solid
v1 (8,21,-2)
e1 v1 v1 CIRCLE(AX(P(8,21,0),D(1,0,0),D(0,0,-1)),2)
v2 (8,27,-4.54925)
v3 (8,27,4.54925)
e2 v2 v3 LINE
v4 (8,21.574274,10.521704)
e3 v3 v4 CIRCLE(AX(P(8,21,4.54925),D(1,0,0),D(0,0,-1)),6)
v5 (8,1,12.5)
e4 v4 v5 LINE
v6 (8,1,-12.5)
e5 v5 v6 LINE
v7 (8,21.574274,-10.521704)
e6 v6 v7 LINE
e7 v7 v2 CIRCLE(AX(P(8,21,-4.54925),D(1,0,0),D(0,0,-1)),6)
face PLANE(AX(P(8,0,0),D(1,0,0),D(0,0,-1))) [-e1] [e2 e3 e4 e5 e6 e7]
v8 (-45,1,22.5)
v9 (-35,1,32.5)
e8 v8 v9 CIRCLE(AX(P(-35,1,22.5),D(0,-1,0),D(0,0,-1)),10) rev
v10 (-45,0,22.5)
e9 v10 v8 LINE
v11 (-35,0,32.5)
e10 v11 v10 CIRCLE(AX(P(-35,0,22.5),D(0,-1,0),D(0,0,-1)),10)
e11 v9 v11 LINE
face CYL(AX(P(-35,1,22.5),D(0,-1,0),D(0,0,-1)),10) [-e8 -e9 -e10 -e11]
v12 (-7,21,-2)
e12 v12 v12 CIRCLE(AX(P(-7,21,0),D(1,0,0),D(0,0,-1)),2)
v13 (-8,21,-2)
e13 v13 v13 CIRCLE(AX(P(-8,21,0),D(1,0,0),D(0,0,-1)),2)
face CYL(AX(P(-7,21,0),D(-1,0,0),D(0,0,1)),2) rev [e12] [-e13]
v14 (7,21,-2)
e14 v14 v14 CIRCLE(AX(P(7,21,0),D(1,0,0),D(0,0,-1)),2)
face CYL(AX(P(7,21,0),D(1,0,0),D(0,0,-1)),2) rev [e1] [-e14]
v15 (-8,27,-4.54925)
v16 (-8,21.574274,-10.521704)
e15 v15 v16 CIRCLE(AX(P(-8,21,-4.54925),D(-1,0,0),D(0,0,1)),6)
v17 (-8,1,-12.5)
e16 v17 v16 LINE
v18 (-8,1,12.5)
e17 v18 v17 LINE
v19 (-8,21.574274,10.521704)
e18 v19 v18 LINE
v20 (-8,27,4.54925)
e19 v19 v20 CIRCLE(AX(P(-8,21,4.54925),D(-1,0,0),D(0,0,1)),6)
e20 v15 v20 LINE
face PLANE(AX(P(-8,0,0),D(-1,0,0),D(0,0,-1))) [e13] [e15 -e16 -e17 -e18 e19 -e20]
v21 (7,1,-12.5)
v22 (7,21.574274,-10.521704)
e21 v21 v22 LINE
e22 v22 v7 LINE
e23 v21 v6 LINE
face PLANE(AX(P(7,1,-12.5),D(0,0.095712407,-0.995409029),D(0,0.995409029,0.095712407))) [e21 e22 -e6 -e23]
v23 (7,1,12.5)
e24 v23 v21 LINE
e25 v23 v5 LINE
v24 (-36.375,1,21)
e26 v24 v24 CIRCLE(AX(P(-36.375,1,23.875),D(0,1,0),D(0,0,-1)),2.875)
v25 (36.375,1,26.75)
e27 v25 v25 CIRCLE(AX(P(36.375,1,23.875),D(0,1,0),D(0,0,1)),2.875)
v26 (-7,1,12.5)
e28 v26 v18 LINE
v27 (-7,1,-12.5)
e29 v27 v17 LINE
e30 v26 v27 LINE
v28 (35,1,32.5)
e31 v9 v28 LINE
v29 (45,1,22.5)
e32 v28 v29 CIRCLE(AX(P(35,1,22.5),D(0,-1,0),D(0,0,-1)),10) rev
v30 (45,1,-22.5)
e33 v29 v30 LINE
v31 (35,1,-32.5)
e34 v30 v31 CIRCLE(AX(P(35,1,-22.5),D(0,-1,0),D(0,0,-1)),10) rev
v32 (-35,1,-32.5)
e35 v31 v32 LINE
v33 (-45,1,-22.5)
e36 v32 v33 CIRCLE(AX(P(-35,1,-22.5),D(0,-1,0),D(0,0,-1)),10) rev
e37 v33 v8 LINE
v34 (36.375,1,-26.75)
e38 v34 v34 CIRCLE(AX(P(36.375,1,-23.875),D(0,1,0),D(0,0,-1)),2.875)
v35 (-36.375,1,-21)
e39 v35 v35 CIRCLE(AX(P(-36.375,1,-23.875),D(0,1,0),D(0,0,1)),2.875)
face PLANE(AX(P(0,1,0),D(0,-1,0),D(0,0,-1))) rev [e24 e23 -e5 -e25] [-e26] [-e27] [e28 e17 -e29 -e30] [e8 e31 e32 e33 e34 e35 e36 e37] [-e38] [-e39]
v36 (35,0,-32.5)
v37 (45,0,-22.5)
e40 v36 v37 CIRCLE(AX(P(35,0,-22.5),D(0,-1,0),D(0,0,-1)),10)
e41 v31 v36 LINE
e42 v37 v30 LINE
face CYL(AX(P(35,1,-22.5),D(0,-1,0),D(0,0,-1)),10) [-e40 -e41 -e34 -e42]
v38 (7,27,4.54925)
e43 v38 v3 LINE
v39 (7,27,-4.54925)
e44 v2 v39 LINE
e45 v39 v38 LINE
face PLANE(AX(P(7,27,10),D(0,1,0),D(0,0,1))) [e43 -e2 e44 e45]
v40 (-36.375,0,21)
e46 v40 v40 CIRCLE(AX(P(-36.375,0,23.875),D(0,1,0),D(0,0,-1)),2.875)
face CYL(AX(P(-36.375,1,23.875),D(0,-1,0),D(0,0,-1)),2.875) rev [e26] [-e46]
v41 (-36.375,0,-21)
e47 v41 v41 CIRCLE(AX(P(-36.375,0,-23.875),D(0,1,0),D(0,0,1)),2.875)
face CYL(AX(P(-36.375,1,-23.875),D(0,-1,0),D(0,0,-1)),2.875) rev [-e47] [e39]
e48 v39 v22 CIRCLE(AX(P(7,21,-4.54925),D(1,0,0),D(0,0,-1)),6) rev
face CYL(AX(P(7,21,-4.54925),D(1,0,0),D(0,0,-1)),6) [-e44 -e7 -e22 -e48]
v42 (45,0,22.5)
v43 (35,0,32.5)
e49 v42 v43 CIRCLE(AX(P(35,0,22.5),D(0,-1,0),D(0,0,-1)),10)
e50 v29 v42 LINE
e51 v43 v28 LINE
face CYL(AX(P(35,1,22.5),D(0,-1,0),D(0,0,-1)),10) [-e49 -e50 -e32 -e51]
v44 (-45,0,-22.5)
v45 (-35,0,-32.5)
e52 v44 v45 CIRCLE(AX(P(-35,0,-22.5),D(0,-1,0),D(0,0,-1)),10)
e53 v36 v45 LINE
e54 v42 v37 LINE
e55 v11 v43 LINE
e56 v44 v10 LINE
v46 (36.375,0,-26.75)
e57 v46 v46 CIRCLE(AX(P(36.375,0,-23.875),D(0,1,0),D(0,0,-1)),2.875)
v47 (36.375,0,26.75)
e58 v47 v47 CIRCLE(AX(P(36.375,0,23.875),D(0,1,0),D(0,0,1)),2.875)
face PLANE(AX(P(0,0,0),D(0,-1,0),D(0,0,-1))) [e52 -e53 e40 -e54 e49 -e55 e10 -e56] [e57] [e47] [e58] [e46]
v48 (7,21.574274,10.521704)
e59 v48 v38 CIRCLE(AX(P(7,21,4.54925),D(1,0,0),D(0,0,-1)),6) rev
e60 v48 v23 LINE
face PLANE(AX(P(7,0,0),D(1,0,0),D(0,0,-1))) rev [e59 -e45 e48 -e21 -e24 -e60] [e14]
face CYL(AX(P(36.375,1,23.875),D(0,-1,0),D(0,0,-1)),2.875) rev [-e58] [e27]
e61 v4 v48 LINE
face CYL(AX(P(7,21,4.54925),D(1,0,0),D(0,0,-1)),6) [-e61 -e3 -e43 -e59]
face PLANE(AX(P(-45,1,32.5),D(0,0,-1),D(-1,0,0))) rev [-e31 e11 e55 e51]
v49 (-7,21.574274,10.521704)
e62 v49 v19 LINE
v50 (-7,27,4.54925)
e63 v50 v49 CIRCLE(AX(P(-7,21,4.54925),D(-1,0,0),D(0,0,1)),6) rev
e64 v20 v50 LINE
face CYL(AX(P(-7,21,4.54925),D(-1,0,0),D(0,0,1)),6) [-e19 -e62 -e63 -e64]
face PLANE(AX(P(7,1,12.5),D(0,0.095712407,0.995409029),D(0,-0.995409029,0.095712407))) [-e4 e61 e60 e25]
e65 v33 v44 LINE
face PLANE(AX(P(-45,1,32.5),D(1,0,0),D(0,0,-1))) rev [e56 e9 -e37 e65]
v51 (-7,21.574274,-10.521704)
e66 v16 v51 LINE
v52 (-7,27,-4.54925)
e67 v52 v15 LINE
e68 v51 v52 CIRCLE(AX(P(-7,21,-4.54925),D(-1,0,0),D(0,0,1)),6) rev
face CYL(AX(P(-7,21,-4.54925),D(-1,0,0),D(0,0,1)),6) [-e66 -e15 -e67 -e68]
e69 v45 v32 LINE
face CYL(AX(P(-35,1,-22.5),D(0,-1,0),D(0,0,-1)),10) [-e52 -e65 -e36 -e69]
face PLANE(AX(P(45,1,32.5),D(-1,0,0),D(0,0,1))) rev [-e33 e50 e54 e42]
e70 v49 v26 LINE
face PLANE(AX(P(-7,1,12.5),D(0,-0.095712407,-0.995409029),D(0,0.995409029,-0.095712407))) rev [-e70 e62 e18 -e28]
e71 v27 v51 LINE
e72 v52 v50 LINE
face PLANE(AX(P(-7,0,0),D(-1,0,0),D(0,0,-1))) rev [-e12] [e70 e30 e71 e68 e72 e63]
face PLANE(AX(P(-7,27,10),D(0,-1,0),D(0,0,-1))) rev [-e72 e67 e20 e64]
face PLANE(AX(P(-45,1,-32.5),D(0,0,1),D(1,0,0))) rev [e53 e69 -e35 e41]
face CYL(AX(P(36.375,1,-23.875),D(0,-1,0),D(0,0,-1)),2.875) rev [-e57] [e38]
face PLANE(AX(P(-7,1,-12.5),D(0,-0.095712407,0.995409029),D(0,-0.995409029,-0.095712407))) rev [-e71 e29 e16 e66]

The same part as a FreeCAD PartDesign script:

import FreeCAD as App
import Part
import Sketcher
from FreeCAD import Vector
Q = App.Units.Quantity


def edges_at(feature, points):
    """Names of the edges that pass closest to the given points."""
    edges = feature.Shape.Edges
    near = lambda p: min(range(len(edges)), key=lambda i: edges[i].distToShape(Part.Vertex(*p))[0])
    return sorted({f"Edge{near(p) + 1}" for p in points})


def add_polygon(sketch, points):
    """Adds a closed chain of lines whose ends are joined by coincident constraints."""
    first, n = sketch.GeometryCount, len(points)
    for a, b in zip(points, points[1:] + points[:1]):
        sketch.addGeometry(Part.LineSegment(App.Vector(*a, 0), App.Vector(*b, 0)), False)
    for i in range(n):
        sketch.addConstraint(Sketcher.Constraint("Coincident", first + i, 2, first + (i + 1) % n, 1))

doc = App.newDocument("Part")
body = doc.addObject("PartDesign::Body", "Body")

sketch1 = doc.addObject("Sketcher::SketchObject", "Sketch")
body.addObject(sketch1)
sketch1.AttachmentSupport = (doc.XZ_Plane, [""])
sketch1.MapMode = "FlatFace"
add_polygon(sketch1, [(-45, -32.5), (-45, 32.5), (45, 32.5), (45, -32.5)])
sketch1.addGeometry(Part.Circle(Vector(-36.375, 23.875, 0), Vector(0, 0, 1), 2.875), False)
sketch1.addGeometry(Part.Circle(Vector(36.375, 23.875, 0), Vector(0, 0, 1), 2.875), False)
sketch1.addGeometry(Part.Circle(Vector(-36.375, -23.875, 0), Vector(0, 0, 1), 2.875), False)
sketch1.addGeometry(Part.Circle(Vector(36.375, -23.875, 0), Vector(0, 0, 1), 2.875), False)
sketch1.addConstraint([
    Sketcher.Constraint("Vertical", 0),
    Sketcher.Constraint("Horizontal", 1),
    Sketcher.Constraint("Vertical", 2),
    Sketcher.Constraint("Horizontal", 3),
    Sketcher.Constraint("Equal", 4, 5),
    Sketcher.Constraint("Equal", 5, 6),
    Sketcher.Constraint("Equal", 6, 7),
    Sketcher.Constraint("Symmetric", 5, 3, 6, 3, -1, 1),
    Sketcher.Constraint("Symmetric", 4, 3, 7, 3, -1, 1),
    Sketcher.Constraint("Symmetric", 0, 2, 2, 2, -1, 1),
    Sketcher.Constraint("Symmetric", 4, 3, 5, 3, -2),
    Sketcher.Constraint("Diameter", 4, Q("5.75 mm")),
    Sketcher.Constraint("DistanceX", 1, 1, 1, 2, Q("90 mm")),
    Sketcher.Constraint("DistanceY", 0, 1, 0, 2, Q("65 mm")),
    Sketcher.Constraint("DistanceX", 4, 3, 5, 3, Q("72.75 mm")),
    Sketcher.Constraint("DistanceY", 6, 3, 4, 3, Q("47.75 mm")),
])
pad1 = doc.addObject("PartDesign::Pad", "Pad")
body.addObject(pad1)
pad1.Profile = sketch1
pad1.Length = 1
pad1.Reversed = True
doc.recompute()

fillet = doc.addObject("PartDesign::Fillet", "Fillet")
body.addObject(fillet)
fillet.Base = (pad1, edges_at(pad1, [
    (45, 0.5, 32.5),
    (-45, 0.5, 32.5),
    (-45, 0.5, -32.5),
    (45, 0.5, -32.5),
]))
fillet.Radius = 10

sketch2 = doc.addObject("Sketcher::SketchObject", "Sketch001")
body.addObject(sketch2)
sketch2.AttachmentSupport = (doc.YZ_Plane, [""])
sketch2.MapMode = "FlatFace"
sketch2.AttachmentOffset = App.Placement(Vector(0, 0, 8), App.Rotation())
add_polygon(sketch2, [(27, 10), (1, 12.5), (1, -12.5), (27, -10)])
sketch2.addGeometry(Part.Circle(Vector(21, 0, 0), Vector(0, 0, 1), 2), False)
sketch2.addConstraint([
    Sketcher.Constraint("Vertical", 1),
    Sketcher.Constraint("Vertical", 3),
    Sketcher.Constraint("PointOnObject", 4, 3, -1),
    Sketcher.Constraint("Equal", 0, 2),
    Sketcher.Constraint("Diameter", 4, Q("4 mm")),
    Sketcher.Constraint("DistanceY", 1, 2, 1, 1, Q("25 mm")),
    Sketcher.Constraint("DistanceY", 3, 1, 3, 2, Q("20 mm")),
    Sketcher.Constraint("DistanceX", -1, 1, 4, 3, Q("21 mm")),
    Sketcher.Constraint("DistanceX", -1, 1, 0, 2, Q("1 mm")),
    Sketcher.Constraint("DistanceX", -1, 1, 2, 2, Q("27 mm")),
    Sketcher.Constraint("DistanceY", 2, 2, -1, 1, Q("10 mm")),
])
pad2 = doc.addObject("PartDesign::Pad", "Pad001")
body.addObject(pad2)
pad2.Profile = sketch2
pad2.Length = 1
pad2.Reversed = True
doc.recompute()

fillet2 = doc.addObject("PartDesign::Fillet", "Fillet001")
body.addObject(fillet2)
fillet2.Base = (pad2, edges_at(pad2, [(7.5, 27, 10), (7.5, 27, -10)]))
fillet2.Radius = 6
doc.recompute()

mirrored = doc.addObject("PartDesign::Mirrored", "Mirrored")
body.addObject(mirrored)
mirrored.Originals = [pad2]
mirrored.MirrorPlane = (doc.YZ_Plane, [""])
body.Tip = mirrored
doc.recompute()

fillet3 = doc.addObject("PartDesign::Fillet", "Fillet002")
body.addObject(fillet3)
fillet3.Base = (mirrored, edges_at(mirrored, [(-7.5, 27, 10), (-7.5, 27, -10)]))
fillet3.Radius = 6

doc.recompute()
